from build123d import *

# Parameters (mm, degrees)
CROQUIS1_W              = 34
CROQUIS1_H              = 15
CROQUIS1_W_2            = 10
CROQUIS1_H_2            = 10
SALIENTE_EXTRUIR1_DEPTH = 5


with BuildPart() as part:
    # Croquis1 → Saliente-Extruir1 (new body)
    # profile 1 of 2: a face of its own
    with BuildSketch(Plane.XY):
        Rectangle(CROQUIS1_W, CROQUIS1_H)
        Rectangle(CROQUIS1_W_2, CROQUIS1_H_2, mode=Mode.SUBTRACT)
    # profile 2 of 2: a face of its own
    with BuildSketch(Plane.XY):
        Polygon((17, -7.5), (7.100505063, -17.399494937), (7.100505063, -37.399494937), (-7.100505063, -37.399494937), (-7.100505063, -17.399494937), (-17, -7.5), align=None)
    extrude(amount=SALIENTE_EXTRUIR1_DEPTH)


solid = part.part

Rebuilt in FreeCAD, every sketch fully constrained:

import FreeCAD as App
import Part
import Sketcher

V = App.Vector


def add_polygon(sketch, points):
    """Adds a closed chain of lines whose ends are joined by coincident constraints."""
    first, n = sketch.GeometryCount, len(points)
    for a, b in zip(points, points[1:] + points[:1]):
        sketch.addGeometry(Part.LineSegment(App.Vector(*a, 0), App.Vector(*b, 0)), False)
    for i in range(n):
        sketch.addConstraint(Sketcher.Constraint("Coincident", first + i, 2, first + (i + 1) % n, 1))

doc = App.newDocument("Part")
body = doc.addObject("PartDesign::Body", "Body")

# Sketch on XY plane
sketch1 = doc.addObject("Sketcher::SketchObject", "Sketch")
body.addObject(sketch1)
sketch1.AttachmentSupport = (doc.XY_Plane, [""])
sketch1.MapMode = "FlatFace"
add_polygon(sketch1, [(-17, 7.5), (-17, -7.5), (-7.100505, -17.399495), (-7.100505, -37.399495), (7.100505, -37.399495), (7.100505, -17.399495), (17, -7.5), (17, 7.5)])  # lines 0-7
add_polygon(sketch1, [(5, -5), (-5, -5), (-5, 5), (5, 5)])  # lines 8-11
sketch1.addConstraint([
    Sketcher.Constraint("Vertical", 0),
    Sketcher.Constraint("Vertical", 2),
    Sketcher.Constraint("Horizontal", 3),
    Sketcher.Constraint("Vertical", 4),
    Sketcher.Constraint("Vertical", 6),
    Sketcher.Constraint("Horizontal", 7),
    Sketcher.Constraint("Horizontal", 8),
    Sketcher.Constraint("Vertical", 9),
    Sketcher.Constraint("Horizontal", 10),
    Sketcher.Constraint("Vertical", 11),
    Sketcher.Constraint("Symmetric", 0, 2, 6, 2, -1, 1),
    Sketcher.Constraint("Symmetric", 8, 2, 10, 2, -1, 1),
    Sketcher.Constraint("Symmetric", 1, 2, 4, 2, -2),
    Sketcher.Constraint("Perpendicular", 1, 5),
    Sketcher.Constraint("Horizontal", 0, 2, 5, 2),
    Sketcher.Constraint("Equal", 10, 9),
    Sketcher.Constraint("DistanceX", 7, 2, 7, 1, 34.0),
    Sketcher.Constraint("DistanceX", 8, 2, 8, 1, 10.0),
    Sketcher.Constraint("DistanceY", 0, 2, 0, 1, 15.0),
    Sketcher.Constraint("DistanceY", 2, 2, 2, 1, 20.0),
    Sketcher.Constraint("Distance", 1, 14.0),
])
pad1 = doc.addObject("PartDesign::Pad", "Pad")
body.addObject(pad1)
pad1.Profile = sketch1
pad1.Length = 5

doc.recompute()
